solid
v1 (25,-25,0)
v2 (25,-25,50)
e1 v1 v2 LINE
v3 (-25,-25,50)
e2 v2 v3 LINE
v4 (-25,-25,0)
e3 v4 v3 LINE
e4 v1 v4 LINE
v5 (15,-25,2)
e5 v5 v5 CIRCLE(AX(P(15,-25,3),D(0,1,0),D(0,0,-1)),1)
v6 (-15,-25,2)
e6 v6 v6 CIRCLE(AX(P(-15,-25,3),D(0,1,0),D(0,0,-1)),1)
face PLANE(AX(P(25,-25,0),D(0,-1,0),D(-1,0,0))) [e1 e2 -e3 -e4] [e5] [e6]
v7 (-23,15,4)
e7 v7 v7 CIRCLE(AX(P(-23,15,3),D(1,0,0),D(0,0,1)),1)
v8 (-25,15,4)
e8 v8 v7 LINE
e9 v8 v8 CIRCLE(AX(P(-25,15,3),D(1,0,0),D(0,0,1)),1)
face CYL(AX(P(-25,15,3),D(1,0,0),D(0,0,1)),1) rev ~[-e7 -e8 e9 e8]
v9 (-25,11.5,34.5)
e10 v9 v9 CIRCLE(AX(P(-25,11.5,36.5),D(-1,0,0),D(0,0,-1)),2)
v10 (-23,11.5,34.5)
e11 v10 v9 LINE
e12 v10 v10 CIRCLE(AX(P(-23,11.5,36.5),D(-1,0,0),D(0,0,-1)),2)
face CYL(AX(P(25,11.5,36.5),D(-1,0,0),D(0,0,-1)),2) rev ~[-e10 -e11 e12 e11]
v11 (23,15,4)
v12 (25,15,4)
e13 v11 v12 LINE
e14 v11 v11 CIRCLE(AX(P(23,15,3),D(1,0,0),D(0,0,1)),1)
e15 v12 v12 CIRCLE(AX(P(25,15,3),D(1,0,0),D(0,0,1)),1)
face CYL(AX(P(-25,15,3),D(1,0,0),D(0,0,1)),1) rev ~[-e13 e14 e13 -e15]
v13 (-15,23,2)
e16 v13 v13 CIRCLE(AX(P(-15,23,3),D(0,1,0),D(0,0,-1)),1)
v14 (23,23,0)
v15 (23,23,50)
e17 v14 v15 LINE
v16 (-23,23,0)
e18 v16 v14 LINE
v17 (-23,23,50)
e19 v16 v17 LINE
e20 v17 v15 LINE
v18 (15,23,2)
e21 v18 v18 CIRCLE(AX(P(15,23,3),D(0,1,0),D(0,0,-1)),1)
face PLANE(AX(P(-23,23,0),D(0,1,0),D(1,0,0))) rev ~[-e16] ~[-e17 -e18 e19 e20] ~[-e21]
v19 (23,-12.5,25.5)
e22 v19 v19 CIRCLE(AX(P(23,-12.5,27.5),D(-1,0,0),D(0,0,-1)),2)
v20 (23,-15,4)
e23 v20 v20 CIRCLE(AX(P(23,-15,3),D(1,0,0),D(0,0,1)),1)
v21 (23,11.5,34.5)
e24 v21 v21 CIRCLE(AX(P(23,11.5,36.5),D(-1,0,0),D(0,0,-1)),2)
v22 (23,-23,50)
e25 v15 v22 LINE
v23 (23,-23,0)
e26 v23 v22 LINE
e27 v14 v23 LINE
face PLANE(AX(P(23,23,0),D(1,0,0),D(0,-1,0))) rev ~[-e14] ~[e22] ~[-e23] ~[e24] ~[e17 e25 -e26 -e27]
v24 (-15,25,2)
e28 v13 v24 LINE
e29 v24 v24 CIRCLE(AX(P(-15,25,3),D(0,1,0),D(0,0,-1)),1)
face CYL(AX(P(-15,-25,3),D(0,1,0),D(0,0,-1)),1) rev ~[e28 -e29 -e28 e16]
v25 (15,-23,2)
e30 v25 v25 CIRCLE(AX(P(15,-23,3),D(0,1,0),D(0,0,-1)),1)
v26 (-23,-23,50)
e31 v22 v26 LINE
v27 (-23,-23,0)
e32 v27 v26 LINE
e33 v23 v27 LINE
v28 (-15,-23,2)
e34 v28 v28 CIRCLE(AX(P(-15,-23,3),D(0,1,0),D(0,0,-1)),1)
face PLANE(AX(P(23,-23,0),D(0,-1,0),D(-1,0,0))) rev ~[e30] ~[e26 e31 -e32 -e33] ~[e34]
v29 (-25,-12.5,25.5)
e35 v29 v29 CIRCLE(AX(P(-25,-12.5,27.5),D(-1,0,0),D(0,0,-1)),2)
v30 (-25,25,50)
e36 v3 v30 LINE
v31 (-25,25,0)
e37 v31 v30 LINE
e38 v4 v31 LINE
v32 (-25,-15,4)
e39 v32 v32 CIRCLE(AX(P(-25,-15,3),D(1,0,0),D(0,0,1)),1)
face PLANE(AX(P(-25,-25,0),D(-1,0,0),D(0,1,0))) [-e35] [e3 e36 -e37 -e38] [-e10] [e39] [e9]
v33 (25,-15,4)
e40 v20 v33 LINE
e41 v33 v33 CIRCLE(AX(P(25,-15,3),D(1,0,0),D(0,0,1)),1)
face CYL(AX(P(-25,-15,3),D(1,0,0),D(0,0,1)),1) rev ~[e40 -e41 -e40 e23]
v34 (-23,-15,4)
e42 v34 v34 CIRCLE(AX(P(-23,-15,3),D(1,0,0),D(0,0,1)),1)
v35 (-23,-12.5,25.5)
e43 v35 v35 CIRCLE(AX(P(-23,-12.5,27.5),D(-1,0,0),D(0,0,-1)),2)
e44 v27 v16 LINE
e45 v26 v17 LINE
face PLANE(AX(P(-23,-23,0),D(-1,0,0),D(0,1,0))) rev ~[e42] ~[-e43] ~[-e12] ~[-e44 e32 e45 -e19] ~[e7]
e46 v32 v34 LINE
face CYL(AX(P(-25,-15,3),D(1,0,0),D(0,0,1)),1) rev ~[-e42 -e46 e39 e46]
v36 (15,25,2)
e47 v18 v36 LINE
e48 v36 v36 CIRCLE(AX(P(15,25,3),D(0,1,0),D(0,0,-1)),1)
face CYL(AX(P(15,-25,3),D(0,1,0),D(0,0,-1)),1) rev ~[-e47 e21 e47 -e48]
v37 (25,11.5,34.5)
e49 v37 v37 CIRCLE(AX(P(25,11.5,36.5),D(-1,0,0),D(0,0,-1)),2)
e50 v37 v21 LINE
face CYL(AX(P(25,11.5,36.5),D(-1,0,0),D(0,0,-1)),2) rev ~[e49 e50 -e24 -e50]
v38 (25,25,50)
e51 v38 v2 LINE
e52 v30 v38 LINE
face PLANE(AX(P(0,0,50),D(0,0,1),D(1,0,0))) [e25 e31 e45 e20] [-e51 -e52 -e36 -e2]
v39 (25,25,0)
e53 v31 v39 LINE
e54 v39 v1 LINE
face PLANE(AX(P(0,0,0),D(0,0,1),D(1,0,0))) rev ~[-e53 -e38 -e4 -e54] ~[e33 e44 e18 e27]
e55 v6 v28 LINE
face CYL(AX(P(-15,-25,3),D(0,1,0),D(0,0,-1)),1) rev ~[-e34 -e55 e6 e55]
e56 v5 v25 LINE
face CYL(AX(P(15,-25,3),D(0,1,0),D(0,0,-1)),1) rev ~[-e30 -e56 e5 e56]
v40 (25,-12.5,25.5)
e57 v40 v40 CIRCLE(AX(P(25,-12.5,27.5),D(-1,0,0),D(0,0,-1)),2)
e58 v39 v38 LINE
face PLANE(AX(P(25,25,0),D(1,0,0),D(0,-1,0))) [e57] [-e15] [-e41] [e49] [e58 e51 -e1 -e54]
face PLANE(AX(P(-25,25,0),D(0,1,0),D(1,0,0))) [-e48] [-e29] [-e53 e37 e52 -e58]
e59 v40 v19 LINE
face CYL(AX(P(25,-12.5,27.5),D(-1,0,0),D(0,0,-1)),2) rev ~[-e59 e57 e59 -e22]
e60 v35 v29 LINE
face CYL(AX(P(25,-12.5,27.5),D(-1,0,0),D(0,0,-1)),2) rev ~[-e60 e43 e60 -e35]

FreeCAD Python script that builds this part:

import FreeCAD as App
import Part
import Sketcher
from FreeCAD import Vector
Q = App.Units.Quantity

doc = App.newDocument("Part")
body = doc.addObject("PartDesign::Body", "Body")

sketch1 = doc.addObject("Sketcher::SketchObject", "Sketch")
body.addObject(sketch1)
sketch1.AttachmentSupport = (doc.XY_Plane, [""])
sketch1.MapMode = "FlatFace"
sketch1.addGeometry(Part.LineSegment(Vector(25, 25, 0), Vector(-25, 25, 0)), False)
sketch1.addGeometry(Part.LineSegment(Vector(-25, 25, 0), Vector(-25, -25, 0)), False)
sketch1.addGeometry(Part.LineSegment(Vector(-25, -25, 0), Vector(25, -25, 0)), False)
sketch1.addGeometry(Part.LineSegment(Vector(25, -25, 0), Vector(25, 25, 0)), False)
sketch1.addGeometry(Part.LineSegment(Vector(-23, -23, 0), Vector(-23, 23, 0)), False)
sketch1.addGeometry(Part.LineSegment(Vector(-23, 23, 0), Vector(23, 23, 0)), False)
sketch1.addGeometry(Part.LineSegment(Vector(23, 23, 0), Vector(23, -23, 0)), False)
sketch1.addGeometry(Part.LineSegment(Vector(23, -23, 0), Vector(-23, -23, 0)), False)
sketch1.addConstraint(Sketcher.Constraint("Coincident", 0, 2, 1, 1))
sketch1.addConstraint(Sketcher.Constraint("Coincident", 1, 2, 2, 1))
sketch1.addConstraint(Sketcher.Constraint("Coincident", 2, 2, 3, 1))
sketch1.addConstraint(Sketcher.Constraint("Coincident", 3, 2, 0, 1))
sketch1.addConstraint(Sketcher.Constraint("Coincident", 4, 2, 5, 1))
sketch1.addConstraint(Sketcher.Constraint("Coincident", 5, 2, 6, 1))
sketch1.addConstraint(Sketcher.Constraint("Coincident", 6, 2, 7, 1))
sketch1.addConstraint(Sketcher.Constraint("Coincident", 7, 2, 4, 1))
sketch1.addConstraint(Sketcher.Constraint("Horizontal", 0))
sketch1.addConstraint(Sketcher.Constraint("Vertical", 1))
sketch1.addConstraint(Sketcher.Constraint("Horizontal", 2))
sketch1.addConstraint(Sketcher.Constraint("Vertical", 3))
sketch1.addConstraint(Sketcher.Constraint("Vertical", 4))
sketch1.addConstraint(Sketcher.Constraint("Horizontal", 5))
sketch1.addConstraint(Sketcher.Constraint("Vertical", 6))
sketch1.addConstraint(Sketcher.Constraint("Horizontal", 7))
sketch1.addConstraint(Sketcher.Constraint("Symmetric", 0, 2, 2, 2, -1, 1))
sketch1.addConstraint(Sketcher.Constraint("Symmetric", 4, 2, 6, 2, -1, 1))
sketch1.addConstraint(Sketcher.Constraint("Equal", 2, 1))
sketch1.addConstraint(Sketcher.Constraint("Equal", 7, 4))
sketch1.addConstraint(Sketcher.Constraint("DistanceX", 0, 2, 0, 1, Q("50 mm")))
sketch1.addConstraint(Sketcher.Constraint("DistanceX", 5, 1, 5, 2, Q("46 mm")))
pad1 = doc.addObject("PartDesign::Pad", "Pad")
body.addObject(pad1)
pad1.Profile = sketch1
pad1.Length = 50

sketch2 = doc.addObject("Sketcher::SketchObject", "Sketch001")
body.addObject(sketch2)
sketch2.AttachmentSupport = (doc.YZ_Plane, [""])
sketch2.MapMode = "FlatFace"
sketch2.AttachmentOffset = App.Placement(Vector(0, 0, 25), App.Rotation())
sketch2.addGeometry(Part.Circle(Vector(-12.5, 27.5, 0), Vector(0, 0, 1), 2), False)
sketch2.addGeometry(Part.Circle(Vector(11.5, 36.5, 0), Vector(0, 0, 1), 2), False)
sketch2.addConstraint(Sketcher.Constraint("Equal", 0, 1))
sketch2.addConstraint(Sketcher.Constraint("Diameter", 0, Q("4 mm")))
sketch2.addConstraint(Sketcher.Constraint("DistanceX", 0, 3, 1, 3, Q("24 mm")))
sketch2.addConstraint(Sketcher.Constraint("DistanceY", 0, 3, 1, 3, Q("9 mm")))
sketch2.addConstraint(Sketcher.Constraint("DistanceX", 0, 3, -1, 1, Q("12.5 mm")))
sketch2.addConstraint(Sketcher.Constraint("DistanceY", -1, 1, 0, 3, Q("27.5 mm")))
doc.recompute()
hole = doc.addObject("PartDesign::Hole", "Hole")
body.addObject(hole)
hole.Profile = sketch2
hole.ThreadType = "None"
hole.Diameter = 4
hole.DepthType = "ThroughAll"

sketch3 = doc.addObject("Sketcher::SketchObject", "Sketch002")
body.addObject(sketch3)
sketch3.AttachmentSupport = (doc.YZ_Plane, [""])
sketch3.MapMode = "FlatFace"
sketch3.AttachmentOffset = App.Placement(Vector(0, 0, -25), App.Rotation())
sketch3.addGeometry(Part.Circle(Vector(15, 3, 0), Vector(0, 0, 1), 1), False)
sketch3.addGeometry(Part.Circle(Vector(-15, 3, 0), Vector(0, 0, 1), 1), False)
sketch3.addConstraint(Sketcher.Constraint("Equal", 0, 1))
sketch3.addConstraint(Sketcher.Constraint("Symmetric", 0, 3, 1, 3, -2))
sketch3.addConstraint(Sketcher.Constraint("Diameter", 0, Q("2 mm")))
sketch3.addConstraint(Sketcher.Constraint("DistanceX", -1, 1, 0, 3, Q("15 mm")))
sketch3.addConstraint(Sketcher.Constraint("DistanceY", -1, 1, 0, 3, Q("3 mm")))
doc.recompute()
hole2 = doc.addObject("PartDesign::Hole", "Hole001")
body.addObject(hole2)
hole2.Profile = sketch3
hole2.ThreadType = "None"
hole2.Diameter = 2
hole2.DepthType = "ThroughAll"
hole2.Reversed = True

sketch4 = doc.addObject("Sketcher::SketchObject", "Sketch003")
body.addObject(sketch4)
sketch4.AttachmentSupport = (doc.XZ_Plane, [""])
sketch4.MapMode = "FlatFace"
sketch4.AttachmentOffset = App.Placement(Vector(0, 0, 25), App.Rotation())
sketch4.addGeometry(Part.Circle(Vector(-15, 3, 0), Vector(0, 0, 1), 1), False)
sketch4.addGeometry(Part.Circle(Vector(15, 3, 0), Vector(0, 0, 1), 1), False)
sketch4.addConstraint(Sketcher.Constraint("Equal", 0, 1))
sketch4.addConstraint(Sketcher.Constraint("Symmetric", 0, 3, 1, 3, -2))
sketch4.addConstraint(Sketcher.Constraint("Diameter", 0, Q("2 mm")))
sketch4.addConstraint(Sketcher.Constraint("DistanceX", 0, 3, -1, 1, Q("15 mm")))
sketch4.addConstraint(Sketcher.Constraint("DistanceY", -1, 1, 0, 3, Q("3 mm")))
doc.recompute()
hole3 = doc.addObject("PartDesign::Hole", "Hole002")
body.addObject(hole3)
hole3.Profile = sketch4
hole3.ThreadType = "None"
hole3.Diameter = 2
hole3.DepthType = "ThroughAll"

doc.recompute()
